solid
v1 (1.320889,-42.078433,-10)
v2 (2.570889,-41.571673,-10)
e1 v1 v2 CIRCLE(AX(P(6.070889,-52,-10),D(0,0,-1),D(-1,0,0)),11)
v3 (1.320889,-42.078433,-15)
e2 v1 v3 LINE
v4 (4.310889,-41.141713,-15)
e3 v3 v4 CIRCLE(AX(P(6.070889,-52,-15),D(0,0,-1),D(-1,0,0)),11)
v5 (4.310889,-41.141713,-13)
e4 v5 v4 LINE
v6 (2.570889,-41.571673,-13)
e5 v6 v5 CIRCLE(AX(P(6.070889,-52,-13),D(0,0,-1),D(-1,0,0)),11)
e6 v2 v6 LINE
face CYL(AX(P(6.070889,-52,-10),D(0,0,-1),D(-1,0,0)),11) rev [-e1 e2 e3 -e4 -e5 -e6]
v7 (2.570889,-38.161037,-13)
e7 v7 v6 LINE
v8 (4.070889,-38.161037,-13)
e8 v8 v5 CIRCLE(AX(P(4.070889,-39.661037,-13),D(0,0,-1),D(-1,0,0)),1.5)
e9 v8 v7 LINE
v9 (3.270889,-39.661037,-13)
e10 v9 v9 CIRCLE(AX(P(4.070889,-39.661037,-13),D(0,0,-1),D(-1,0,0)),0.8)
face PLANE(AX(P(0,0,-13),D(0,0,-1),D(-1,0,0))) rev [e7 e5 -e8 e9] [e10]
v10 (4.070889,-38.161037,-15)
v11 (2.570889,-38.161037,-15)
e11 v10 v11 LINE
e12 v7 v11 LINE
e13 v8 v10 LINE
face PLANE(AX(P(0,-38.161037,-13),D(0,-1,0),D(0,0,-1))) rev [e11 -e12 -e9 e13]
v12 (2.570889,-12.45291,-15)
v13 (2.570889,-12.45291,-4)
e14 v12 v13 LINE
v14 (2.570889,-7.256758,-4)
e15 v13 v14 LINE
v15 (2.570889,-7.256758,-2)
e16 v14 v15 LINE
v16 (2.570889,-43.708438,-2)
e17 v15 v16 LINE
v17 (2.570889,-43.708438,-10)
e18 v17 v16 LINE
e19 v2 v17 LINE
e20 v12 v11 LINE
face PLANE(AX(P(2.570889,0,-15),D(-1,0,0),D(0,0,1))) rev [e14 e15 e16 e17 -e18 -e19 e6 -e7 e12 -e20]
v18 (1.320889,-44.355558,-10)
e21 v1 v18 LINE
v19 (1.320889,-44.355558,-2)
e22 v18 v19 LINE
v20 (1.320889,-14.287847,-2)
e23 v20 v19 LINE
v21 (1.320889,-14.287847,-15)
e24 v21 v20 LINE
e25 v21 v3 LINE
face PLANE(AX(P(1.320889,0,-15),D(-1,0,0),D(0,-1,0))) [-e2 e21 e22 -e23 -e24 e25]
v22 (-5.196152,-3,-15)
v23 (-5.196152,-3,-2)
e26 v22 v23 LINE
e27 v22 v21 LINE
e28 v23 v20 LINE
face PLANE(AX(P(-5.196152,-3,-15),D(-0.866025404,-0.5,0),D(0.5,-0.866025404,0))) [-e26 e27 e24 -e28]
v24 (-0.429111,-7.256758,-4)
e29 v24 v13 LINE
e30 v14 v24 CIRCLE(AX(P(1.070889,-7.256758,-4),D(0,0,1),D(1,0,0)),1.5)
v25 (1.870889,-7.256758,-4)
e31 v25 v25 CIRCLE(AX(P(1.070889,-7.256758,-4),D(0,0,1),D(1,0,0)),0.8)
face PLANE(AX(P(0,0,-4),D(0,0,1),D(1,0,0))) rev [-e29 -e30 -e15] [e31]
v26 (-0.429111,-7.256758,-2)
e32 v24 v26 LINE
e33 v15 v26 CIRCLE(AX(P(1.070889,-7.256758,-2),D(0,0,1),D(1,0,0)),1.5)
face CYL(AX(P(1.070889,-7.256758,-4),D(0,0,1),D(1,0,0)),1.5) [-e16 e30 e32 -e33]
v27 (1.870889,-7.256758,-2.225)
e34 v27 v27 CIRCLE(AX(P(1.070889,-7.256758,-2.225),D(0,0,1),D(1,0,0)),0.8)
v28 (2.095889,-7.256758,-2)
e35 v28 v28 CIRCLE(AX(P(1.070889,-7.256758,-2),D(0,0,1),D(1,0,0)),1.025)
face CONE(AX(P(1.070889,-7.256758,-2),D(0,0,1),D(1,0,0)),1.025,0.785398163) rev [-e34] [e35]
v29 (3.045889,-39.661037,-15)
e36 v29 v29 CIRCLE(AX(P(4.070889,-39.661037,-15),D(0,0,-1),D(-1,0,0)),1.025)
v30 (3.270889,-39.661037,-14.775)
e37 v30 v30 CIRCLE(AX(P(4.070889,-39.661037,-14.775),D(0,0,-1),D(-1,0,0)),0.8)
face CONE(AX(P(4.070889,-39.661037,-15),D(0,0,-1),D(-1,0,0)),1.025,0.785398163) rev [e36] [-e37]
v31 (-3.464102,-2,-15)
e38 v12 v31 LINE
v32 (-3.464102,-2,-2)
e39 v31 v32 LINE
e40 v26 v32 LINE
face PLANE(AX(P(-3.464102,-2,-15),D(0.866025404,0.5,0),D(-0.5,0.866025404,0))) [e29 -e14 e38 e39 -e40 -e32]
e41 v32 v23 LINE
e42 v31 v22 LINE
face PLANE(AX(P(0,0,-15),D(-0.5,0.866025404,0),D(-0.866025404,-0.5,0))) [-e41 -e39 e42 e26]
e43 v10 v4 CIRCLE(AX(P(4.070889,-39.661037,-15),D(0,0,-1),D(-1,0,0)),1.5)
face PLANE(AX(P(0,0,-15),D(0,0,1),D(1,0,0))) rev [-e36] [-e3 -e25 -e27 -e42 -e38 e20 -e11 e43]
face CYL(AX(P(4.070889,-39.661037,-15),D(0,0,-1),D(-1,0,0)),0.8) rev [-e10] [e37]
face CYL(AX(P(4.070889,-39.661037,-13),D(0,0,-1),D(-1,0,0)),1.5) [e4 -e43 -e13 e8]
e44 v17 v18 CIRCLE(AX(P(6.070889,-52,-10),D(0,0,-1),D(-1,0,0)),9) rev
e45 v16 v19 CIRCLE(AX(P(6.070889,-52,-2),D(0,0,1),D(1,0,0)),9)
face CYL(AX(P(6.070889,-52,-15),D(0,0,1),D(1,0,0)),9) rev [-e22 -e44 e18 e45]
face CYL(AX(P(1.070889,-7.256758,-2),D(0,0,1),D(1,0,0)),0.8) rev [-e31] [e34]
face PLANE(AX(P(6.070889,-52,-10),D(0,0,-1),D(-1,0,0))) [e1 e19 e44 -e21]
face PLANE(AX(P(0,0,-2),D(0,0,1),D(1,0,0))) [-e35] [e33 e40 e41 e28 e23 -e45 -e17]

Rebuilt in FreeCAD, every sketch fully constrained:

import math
import FreeCAD as App
import Part
import Sketcher

V = App.Vector
Q = App.Units.Quantity

doc = App.newDocument("Part")
body = doc.addObject("PartDesign::Body", "Body")

# Sketch on XY plane
sketch1 = body.newObject("Sketcher::SketchObject", "Sketch")
sketch1.AttachmentSupport = (doc.getObject("XY_Plane"), [""])
sketch1.MapMode = "FlatFace"
sketch1.AttachmentOffset = App.Placement(V(0, 0, -2), App.Rotation())
sketch1.addGeometry(Part.LineSegment(V(2.6, -12.5, 0), V(-3.5, -2, 0)), False)
sketch1.addGeometry(Part.LineSegment(V(-3.5, -2, 0), V(-5.2, -3, 0)), False)
sketch1.addGeometry(Part.LineSegment(V(-5.2, -3, 0), V(1.3, -14.3, 0)), False)
sketch1.addGeometry(Part.LineSegment(V(1.3, -14.3, 0), V(1.3, -44.4, 0)), False)
sketch1.addGeometry(Part.ArcOfCircle(Part.Circle(V(6.1, -52, 0), V(0, 0, 1), 9), math.radians(112.89), math.radians(121.86)), False)
sketch1.addGeometry(Part.LineSegment(V(2.6, -43.7, 0), V(2.6, -12.5, 0)), False)
sketch1.addConstraint(Sketcher.Constraint("Coincident", 0, 2, 1, 1))
sketch1.addConstraint(Sketcher.Constraint("Coincident", 1, 2, 2, 1))
sketch1.addConstraint(Sketcher.Constraint("Coincident", 2, 2, 3, 1))
sketch1.addConstraint(Sketcher.Constraint("Coincident", 3, 2, 4, 2))
sketch1.addConstraint(Sketcher.Constraint("Coincident", 4, 1, 5, 1))
sketch1.addConstraint(Sketcher.Constraint("Coincident", 5, 2, 0, 1))
sketch1.addConstraint(Sketcher.Constraint("Vertical", 3))
sketch1.addConstraint(Sketcher.Constraint("Vertical", 5))
sketch1.addConstraint(Sketcher.Constraint("Perpendicular", 0, 1))
sketch1.addConstraint(Sketcher.Constraint("Perpendicular", 1, 2))
sketch1.addConstraint(Sketcher.Constraint("Radius", 4, Q("9 mm")))
sketch1.addConstraint(Sketcher.Constraint("Angle", 0, Q("120 deg")))
sketch1.addConstraint(Sketcher.Constraint("Distance", 1, Q("2 mm")))
sketch1.addConstraint(Sketcher.Constraint("DistanceY", 4, 3, -1, 1, Q("52 mm")))
sketch1.addConstraint(Sketcher.Constraint("DistanceY", 0, 2, -1, 1, Q("2 mm")))
sketch1.addConstraint(Sketcher.Constraint("DistanceX", 4, 1, 4, 3, Q("3.5 mm")))
sketch1.addConstraint(Sketcher.Constraint("DistanceX", 2, 2, 4, 3, Q("4.75 mm")))
sketch1.addConstraint(Sketcher.Constraint("DistanceY", 3, 2, 3, 1, Q("30.067711 mm")))
sketch1.addConstraint(Sketcher.Constraint("DistanceX", 0, 2, -1, 1, Q("3.464102 mm")))
pad1 = body.newObject("PartDesign::Pad", "Pad")
pad1.Profile = sketch1
pad1.Length = 13
pad1.Reversed = True

# Sketch on XY plane
sketch2 = body.newObject("Sketcher::SketchObject", "Sketch001")
sketch2.AttachmentSupport = (doc.getObject("XY_Plane"), [""])
sketch2.MapMode = "FlatFace"
sketch2.AttachmentOffset = App.Placement(V(0, 0, -15), App.Rotation())
sketch2.addGeometry(Part.Circle(V(6, -52, 0), V(0, 0, 1), 11), False)
sketch2.addConstraint(Sketcher.Constraint("Diameter", 0, Q("22 mm")))
sketch2.addConstraint(Sketcher.Constraint("DistanceY", 0, 3, -1, 1, Q("52 mm")))
sketch2.addConstraint(Sketcher.Constraint("DistanceX", -1, 1, 0, 3, Q("6.070889 mm")))
pocket1 = body.newObject("PartDesign::Pocket", "Pocket")
pocket1.Profile = sketch2
pocket1.Length = 5
pocket1.Reversed = True

# Sketch on XY plane
sketch3 = body.newObject("Sketcher::SketchObject", "Sketch002")
sketch3.AttachmentSupport = (doc.getObject("XY_Plane"), [""])
sketch3.MapMode = "FlatFace"
sketch3.AttachmentOffset = App.Placement(V(0, 0, -15), App.Rotation())
sketch3.addGeometry(Part.ArcOfCircle(Part.Circle(V(4.1, -39.7, 0), V(0, 0, 1), 1.5), math.radians(-81), math.radians(90)), False)
sketch3.addGeometry(Part.ArcOfCircle(Part.Circle(V(6.1, -52, 0), V(0, 0, 1), 11), math.radians(99.21), math.radians(108.55)), False)
sketch3.addGeometry(Part.LineSegment(V(2.6, -41.6, 0), V(2.6, -38.2, 0)), False)
sketch3.addGeometry(Part.LineSegment(V(2.6, -38.2, 0), V(4.1, -38.2, 0)), False)
sketch3.addConstraint(Sketcher.Constraint("Tangent", 0, 1, 1, 1))
sketch3.addConstraint(Sketcher.Constraint("Coincident", 1, 2, 2, 1))
sketch3.addConstraint(Sketcher.Constraint("Coincident", 2, 2, 3, 1))
sketch3.addConstraint(Sketcher.Constraint("Tangent", 3, 2, 0, 2))
sketch3.addConstraint(Sketcher.Constraint("Vertical", 2))
sketch3.addConstraint(Sketcher.Constraint("Horizontal", 3))
sketch3.addConstraint(Sketcher.Constraint("Radius", 1, Q("11 mm")))
sketch3.addConstraint(Sketcher.Constraint("Radius", 0, Q("1.5 mm")))
sketch3.addConstraint(Sketcher.Constraint("DistanceX", 3, 1, 3, 2, Q("1.5 mm")))
sketch3.addConstraint(Sketcher.Constraint("DistanceY", 1, 3, -1, 1, Q("52 mm")))
sketch3.addConstraint(Sketcher.Constraint("DistanceX", 0, 3, 1, 3, Q("2 mm")))
sketch3.addConstraint(Sketcher.Constraint("DistanceX", -1, 1, 0, 3, Q("4.070889 mm")))
pad2 = body.newObject("PartDesign::Pad", "Pad001")
pad2.Profile = sketch3
pad2.Length = 2

# Sketch on XY plane
sketch4 = body.newObject("Sketcher::SketchObject", "Sketch003")
sketch4.AttachmentSupport = (doc.getObject("XY_Plane"), [""])
sketch4.MapMode = "FlatFace"
sketch4.AttachmentOffset = App.Placement(V(0, 0, -2), App.Rotation())
sketch4.addGeometry(Part.LineSegment(V(0.3, -8.6, 0), V(2.6, -12.5, 0)), False)
sketch4.addGeometry(Part.LineSegment(V(2.6, -12.5, 0), V(2.6, -7.3, 0)), False)
sketch4.addGeometry(Part.ArcOfCircle(Part.Circle(V(1.1, -7.3, 0), V(0, 0, 1), 1.5), math.radians(0), math.radians(180)), False)
sketch4.addGeometry(Part.LineSegment(V(-0.4, -7.3, 0), V(0.3, -8.6, 0)), False)
sketch4.addConstraint(Sketcher.Constraint("Coincident", 0, 2, 1, 1))
sketch4.addConstraint(Sketcher.Constraint("Tangent", 1, 2, 2, 1))
sketch4.addConstraint(Sketcher.Constraint("Coincident", 2, 2, 3, 1))
sketch4.addConstraint(Sketcher.Constraint("Coincident", 3, 2, 0, 1))
sketch4.addConstraint(Sketcher.Constraint("Vertical", 1))
sketch4.addConstraint(Sketcher.Constraint("Parallel", 0, 3))
sketch4.addConstraint(Sketcher.Constraint("Horizontal", 1, 2, 2, 2))
sketch4.addConstraint(Sketcher.Constraint("Radius", 2, Q("1.5 mm")))
sketch4.addConstraint(Sketcher.Constraint("Angle", 0, Q("-60 deg")))
sketch4.addConstraint(Sketcher.Constraint("Distance", 0, Q("4.5 mm")))
sketch4.addConstraint(Sketcher.Constraint("DistanceX", -1, 1, 2, 3, Q("1.070889 mm")))
sketch4.addConstraint(Sketcher.Constraint("DistanceY", 0, 2, -1, 1, Q("12.45291 mm")))
pad3 = body.newObject("PartDesign::Pad", "Pad002")
pad3.Profile = sketch4
pad3.Length = 2
pad3.Reversed = True

# Sketch on XY plane
sketch5 = body.newObject("Sketcher::SketchObject", "Sketch004")
sketch5.AttachmentSupport = (doc.getObject("XY_Plane"), [""])
sketch5.MapMode = "FlatFace"
sketch5.AttachmentOffset = App.Placement(V(0, 0, -2), App.Rotation())
sketch5.addGeometry(Part.Circle(V(1.1, -7.3, 0), V(0, 0, 1), 0.8), False)
sketch5.addConstraint(Sketcher.Constraint("Diameter", 0, Q("1.6 mm")))
sketch5.addConstraint(Sketcher.Constraint("DistanceX", -1, 1, 0, 3, Q("1.070889 mm")))
sketch5.addConstraint(Sketcher.Constraint("DistanceY", 0, 3, -1, 1, Q("7.256758 mm")))
doc.recompute()
hole = body.newObject("PartDesign::Hole", "Hole")
hole.Profile = sketch5
hole.ThreadType = "None"
hole.Diameter = 1.6
hole.DepthType = "Dimension"
hole.Depth = 5.2
hole.DrillPoint = "Angled"
hole.DrillPointAngle = 118
hole.HoleCutType = "Countersink"
hole.HoleCutDiameter = 2.05
hole.HoleCutCountersinkAngle = 90

# Sketch on XY plane
sketch6 = body.newObject("Sketcher::SketchObject", "Sketch005")
sketch6.AttachmentSupport = (doc.getObject("XY_Plane"), [""])
sketch6.MapMode = "FlatFace"
sketch6.AttachmentOffset = App.Placement(V(0, 0, -15), App.Rotation())
sketch6.addGeometry(Part.Circle(V(4.1, -39.7, 0), V(0, 0, 1), 0.8), False)
sketch6.addConstraint(Sketcher.Constraint("Diameter", 0, Q("1.6 mm")))
sketch6.addConstraint(Sketcher.Constraint("DistanceX", -1, 1, 0, 3, Q("4.070889 mm")))
sketch6.addConstraint(Sketcher.Constraint("DistanceY", 0, 3, -1, 1, Q("39.661037 mm")))
doc.recompute()
hole2 = body.newObject("PartDesign::Hole", "Hole001")
hole2.Profile = sketch6
hole2.ThreadType = "None"
hole2.Diameter = 1.6
hole2.DepthType = "Dimension"
hole2.Depth = 5.2
hole2.DrillPoint = "Angled"
hole2.DrillPointAngle = 118
hole2.HoleCutType = "Countersink"
hole2.HoleCutDiameter = 2.05
hole2.HoleCutCountersinkAngle = 90
hole2.Reversed = True

doc.recompute()
